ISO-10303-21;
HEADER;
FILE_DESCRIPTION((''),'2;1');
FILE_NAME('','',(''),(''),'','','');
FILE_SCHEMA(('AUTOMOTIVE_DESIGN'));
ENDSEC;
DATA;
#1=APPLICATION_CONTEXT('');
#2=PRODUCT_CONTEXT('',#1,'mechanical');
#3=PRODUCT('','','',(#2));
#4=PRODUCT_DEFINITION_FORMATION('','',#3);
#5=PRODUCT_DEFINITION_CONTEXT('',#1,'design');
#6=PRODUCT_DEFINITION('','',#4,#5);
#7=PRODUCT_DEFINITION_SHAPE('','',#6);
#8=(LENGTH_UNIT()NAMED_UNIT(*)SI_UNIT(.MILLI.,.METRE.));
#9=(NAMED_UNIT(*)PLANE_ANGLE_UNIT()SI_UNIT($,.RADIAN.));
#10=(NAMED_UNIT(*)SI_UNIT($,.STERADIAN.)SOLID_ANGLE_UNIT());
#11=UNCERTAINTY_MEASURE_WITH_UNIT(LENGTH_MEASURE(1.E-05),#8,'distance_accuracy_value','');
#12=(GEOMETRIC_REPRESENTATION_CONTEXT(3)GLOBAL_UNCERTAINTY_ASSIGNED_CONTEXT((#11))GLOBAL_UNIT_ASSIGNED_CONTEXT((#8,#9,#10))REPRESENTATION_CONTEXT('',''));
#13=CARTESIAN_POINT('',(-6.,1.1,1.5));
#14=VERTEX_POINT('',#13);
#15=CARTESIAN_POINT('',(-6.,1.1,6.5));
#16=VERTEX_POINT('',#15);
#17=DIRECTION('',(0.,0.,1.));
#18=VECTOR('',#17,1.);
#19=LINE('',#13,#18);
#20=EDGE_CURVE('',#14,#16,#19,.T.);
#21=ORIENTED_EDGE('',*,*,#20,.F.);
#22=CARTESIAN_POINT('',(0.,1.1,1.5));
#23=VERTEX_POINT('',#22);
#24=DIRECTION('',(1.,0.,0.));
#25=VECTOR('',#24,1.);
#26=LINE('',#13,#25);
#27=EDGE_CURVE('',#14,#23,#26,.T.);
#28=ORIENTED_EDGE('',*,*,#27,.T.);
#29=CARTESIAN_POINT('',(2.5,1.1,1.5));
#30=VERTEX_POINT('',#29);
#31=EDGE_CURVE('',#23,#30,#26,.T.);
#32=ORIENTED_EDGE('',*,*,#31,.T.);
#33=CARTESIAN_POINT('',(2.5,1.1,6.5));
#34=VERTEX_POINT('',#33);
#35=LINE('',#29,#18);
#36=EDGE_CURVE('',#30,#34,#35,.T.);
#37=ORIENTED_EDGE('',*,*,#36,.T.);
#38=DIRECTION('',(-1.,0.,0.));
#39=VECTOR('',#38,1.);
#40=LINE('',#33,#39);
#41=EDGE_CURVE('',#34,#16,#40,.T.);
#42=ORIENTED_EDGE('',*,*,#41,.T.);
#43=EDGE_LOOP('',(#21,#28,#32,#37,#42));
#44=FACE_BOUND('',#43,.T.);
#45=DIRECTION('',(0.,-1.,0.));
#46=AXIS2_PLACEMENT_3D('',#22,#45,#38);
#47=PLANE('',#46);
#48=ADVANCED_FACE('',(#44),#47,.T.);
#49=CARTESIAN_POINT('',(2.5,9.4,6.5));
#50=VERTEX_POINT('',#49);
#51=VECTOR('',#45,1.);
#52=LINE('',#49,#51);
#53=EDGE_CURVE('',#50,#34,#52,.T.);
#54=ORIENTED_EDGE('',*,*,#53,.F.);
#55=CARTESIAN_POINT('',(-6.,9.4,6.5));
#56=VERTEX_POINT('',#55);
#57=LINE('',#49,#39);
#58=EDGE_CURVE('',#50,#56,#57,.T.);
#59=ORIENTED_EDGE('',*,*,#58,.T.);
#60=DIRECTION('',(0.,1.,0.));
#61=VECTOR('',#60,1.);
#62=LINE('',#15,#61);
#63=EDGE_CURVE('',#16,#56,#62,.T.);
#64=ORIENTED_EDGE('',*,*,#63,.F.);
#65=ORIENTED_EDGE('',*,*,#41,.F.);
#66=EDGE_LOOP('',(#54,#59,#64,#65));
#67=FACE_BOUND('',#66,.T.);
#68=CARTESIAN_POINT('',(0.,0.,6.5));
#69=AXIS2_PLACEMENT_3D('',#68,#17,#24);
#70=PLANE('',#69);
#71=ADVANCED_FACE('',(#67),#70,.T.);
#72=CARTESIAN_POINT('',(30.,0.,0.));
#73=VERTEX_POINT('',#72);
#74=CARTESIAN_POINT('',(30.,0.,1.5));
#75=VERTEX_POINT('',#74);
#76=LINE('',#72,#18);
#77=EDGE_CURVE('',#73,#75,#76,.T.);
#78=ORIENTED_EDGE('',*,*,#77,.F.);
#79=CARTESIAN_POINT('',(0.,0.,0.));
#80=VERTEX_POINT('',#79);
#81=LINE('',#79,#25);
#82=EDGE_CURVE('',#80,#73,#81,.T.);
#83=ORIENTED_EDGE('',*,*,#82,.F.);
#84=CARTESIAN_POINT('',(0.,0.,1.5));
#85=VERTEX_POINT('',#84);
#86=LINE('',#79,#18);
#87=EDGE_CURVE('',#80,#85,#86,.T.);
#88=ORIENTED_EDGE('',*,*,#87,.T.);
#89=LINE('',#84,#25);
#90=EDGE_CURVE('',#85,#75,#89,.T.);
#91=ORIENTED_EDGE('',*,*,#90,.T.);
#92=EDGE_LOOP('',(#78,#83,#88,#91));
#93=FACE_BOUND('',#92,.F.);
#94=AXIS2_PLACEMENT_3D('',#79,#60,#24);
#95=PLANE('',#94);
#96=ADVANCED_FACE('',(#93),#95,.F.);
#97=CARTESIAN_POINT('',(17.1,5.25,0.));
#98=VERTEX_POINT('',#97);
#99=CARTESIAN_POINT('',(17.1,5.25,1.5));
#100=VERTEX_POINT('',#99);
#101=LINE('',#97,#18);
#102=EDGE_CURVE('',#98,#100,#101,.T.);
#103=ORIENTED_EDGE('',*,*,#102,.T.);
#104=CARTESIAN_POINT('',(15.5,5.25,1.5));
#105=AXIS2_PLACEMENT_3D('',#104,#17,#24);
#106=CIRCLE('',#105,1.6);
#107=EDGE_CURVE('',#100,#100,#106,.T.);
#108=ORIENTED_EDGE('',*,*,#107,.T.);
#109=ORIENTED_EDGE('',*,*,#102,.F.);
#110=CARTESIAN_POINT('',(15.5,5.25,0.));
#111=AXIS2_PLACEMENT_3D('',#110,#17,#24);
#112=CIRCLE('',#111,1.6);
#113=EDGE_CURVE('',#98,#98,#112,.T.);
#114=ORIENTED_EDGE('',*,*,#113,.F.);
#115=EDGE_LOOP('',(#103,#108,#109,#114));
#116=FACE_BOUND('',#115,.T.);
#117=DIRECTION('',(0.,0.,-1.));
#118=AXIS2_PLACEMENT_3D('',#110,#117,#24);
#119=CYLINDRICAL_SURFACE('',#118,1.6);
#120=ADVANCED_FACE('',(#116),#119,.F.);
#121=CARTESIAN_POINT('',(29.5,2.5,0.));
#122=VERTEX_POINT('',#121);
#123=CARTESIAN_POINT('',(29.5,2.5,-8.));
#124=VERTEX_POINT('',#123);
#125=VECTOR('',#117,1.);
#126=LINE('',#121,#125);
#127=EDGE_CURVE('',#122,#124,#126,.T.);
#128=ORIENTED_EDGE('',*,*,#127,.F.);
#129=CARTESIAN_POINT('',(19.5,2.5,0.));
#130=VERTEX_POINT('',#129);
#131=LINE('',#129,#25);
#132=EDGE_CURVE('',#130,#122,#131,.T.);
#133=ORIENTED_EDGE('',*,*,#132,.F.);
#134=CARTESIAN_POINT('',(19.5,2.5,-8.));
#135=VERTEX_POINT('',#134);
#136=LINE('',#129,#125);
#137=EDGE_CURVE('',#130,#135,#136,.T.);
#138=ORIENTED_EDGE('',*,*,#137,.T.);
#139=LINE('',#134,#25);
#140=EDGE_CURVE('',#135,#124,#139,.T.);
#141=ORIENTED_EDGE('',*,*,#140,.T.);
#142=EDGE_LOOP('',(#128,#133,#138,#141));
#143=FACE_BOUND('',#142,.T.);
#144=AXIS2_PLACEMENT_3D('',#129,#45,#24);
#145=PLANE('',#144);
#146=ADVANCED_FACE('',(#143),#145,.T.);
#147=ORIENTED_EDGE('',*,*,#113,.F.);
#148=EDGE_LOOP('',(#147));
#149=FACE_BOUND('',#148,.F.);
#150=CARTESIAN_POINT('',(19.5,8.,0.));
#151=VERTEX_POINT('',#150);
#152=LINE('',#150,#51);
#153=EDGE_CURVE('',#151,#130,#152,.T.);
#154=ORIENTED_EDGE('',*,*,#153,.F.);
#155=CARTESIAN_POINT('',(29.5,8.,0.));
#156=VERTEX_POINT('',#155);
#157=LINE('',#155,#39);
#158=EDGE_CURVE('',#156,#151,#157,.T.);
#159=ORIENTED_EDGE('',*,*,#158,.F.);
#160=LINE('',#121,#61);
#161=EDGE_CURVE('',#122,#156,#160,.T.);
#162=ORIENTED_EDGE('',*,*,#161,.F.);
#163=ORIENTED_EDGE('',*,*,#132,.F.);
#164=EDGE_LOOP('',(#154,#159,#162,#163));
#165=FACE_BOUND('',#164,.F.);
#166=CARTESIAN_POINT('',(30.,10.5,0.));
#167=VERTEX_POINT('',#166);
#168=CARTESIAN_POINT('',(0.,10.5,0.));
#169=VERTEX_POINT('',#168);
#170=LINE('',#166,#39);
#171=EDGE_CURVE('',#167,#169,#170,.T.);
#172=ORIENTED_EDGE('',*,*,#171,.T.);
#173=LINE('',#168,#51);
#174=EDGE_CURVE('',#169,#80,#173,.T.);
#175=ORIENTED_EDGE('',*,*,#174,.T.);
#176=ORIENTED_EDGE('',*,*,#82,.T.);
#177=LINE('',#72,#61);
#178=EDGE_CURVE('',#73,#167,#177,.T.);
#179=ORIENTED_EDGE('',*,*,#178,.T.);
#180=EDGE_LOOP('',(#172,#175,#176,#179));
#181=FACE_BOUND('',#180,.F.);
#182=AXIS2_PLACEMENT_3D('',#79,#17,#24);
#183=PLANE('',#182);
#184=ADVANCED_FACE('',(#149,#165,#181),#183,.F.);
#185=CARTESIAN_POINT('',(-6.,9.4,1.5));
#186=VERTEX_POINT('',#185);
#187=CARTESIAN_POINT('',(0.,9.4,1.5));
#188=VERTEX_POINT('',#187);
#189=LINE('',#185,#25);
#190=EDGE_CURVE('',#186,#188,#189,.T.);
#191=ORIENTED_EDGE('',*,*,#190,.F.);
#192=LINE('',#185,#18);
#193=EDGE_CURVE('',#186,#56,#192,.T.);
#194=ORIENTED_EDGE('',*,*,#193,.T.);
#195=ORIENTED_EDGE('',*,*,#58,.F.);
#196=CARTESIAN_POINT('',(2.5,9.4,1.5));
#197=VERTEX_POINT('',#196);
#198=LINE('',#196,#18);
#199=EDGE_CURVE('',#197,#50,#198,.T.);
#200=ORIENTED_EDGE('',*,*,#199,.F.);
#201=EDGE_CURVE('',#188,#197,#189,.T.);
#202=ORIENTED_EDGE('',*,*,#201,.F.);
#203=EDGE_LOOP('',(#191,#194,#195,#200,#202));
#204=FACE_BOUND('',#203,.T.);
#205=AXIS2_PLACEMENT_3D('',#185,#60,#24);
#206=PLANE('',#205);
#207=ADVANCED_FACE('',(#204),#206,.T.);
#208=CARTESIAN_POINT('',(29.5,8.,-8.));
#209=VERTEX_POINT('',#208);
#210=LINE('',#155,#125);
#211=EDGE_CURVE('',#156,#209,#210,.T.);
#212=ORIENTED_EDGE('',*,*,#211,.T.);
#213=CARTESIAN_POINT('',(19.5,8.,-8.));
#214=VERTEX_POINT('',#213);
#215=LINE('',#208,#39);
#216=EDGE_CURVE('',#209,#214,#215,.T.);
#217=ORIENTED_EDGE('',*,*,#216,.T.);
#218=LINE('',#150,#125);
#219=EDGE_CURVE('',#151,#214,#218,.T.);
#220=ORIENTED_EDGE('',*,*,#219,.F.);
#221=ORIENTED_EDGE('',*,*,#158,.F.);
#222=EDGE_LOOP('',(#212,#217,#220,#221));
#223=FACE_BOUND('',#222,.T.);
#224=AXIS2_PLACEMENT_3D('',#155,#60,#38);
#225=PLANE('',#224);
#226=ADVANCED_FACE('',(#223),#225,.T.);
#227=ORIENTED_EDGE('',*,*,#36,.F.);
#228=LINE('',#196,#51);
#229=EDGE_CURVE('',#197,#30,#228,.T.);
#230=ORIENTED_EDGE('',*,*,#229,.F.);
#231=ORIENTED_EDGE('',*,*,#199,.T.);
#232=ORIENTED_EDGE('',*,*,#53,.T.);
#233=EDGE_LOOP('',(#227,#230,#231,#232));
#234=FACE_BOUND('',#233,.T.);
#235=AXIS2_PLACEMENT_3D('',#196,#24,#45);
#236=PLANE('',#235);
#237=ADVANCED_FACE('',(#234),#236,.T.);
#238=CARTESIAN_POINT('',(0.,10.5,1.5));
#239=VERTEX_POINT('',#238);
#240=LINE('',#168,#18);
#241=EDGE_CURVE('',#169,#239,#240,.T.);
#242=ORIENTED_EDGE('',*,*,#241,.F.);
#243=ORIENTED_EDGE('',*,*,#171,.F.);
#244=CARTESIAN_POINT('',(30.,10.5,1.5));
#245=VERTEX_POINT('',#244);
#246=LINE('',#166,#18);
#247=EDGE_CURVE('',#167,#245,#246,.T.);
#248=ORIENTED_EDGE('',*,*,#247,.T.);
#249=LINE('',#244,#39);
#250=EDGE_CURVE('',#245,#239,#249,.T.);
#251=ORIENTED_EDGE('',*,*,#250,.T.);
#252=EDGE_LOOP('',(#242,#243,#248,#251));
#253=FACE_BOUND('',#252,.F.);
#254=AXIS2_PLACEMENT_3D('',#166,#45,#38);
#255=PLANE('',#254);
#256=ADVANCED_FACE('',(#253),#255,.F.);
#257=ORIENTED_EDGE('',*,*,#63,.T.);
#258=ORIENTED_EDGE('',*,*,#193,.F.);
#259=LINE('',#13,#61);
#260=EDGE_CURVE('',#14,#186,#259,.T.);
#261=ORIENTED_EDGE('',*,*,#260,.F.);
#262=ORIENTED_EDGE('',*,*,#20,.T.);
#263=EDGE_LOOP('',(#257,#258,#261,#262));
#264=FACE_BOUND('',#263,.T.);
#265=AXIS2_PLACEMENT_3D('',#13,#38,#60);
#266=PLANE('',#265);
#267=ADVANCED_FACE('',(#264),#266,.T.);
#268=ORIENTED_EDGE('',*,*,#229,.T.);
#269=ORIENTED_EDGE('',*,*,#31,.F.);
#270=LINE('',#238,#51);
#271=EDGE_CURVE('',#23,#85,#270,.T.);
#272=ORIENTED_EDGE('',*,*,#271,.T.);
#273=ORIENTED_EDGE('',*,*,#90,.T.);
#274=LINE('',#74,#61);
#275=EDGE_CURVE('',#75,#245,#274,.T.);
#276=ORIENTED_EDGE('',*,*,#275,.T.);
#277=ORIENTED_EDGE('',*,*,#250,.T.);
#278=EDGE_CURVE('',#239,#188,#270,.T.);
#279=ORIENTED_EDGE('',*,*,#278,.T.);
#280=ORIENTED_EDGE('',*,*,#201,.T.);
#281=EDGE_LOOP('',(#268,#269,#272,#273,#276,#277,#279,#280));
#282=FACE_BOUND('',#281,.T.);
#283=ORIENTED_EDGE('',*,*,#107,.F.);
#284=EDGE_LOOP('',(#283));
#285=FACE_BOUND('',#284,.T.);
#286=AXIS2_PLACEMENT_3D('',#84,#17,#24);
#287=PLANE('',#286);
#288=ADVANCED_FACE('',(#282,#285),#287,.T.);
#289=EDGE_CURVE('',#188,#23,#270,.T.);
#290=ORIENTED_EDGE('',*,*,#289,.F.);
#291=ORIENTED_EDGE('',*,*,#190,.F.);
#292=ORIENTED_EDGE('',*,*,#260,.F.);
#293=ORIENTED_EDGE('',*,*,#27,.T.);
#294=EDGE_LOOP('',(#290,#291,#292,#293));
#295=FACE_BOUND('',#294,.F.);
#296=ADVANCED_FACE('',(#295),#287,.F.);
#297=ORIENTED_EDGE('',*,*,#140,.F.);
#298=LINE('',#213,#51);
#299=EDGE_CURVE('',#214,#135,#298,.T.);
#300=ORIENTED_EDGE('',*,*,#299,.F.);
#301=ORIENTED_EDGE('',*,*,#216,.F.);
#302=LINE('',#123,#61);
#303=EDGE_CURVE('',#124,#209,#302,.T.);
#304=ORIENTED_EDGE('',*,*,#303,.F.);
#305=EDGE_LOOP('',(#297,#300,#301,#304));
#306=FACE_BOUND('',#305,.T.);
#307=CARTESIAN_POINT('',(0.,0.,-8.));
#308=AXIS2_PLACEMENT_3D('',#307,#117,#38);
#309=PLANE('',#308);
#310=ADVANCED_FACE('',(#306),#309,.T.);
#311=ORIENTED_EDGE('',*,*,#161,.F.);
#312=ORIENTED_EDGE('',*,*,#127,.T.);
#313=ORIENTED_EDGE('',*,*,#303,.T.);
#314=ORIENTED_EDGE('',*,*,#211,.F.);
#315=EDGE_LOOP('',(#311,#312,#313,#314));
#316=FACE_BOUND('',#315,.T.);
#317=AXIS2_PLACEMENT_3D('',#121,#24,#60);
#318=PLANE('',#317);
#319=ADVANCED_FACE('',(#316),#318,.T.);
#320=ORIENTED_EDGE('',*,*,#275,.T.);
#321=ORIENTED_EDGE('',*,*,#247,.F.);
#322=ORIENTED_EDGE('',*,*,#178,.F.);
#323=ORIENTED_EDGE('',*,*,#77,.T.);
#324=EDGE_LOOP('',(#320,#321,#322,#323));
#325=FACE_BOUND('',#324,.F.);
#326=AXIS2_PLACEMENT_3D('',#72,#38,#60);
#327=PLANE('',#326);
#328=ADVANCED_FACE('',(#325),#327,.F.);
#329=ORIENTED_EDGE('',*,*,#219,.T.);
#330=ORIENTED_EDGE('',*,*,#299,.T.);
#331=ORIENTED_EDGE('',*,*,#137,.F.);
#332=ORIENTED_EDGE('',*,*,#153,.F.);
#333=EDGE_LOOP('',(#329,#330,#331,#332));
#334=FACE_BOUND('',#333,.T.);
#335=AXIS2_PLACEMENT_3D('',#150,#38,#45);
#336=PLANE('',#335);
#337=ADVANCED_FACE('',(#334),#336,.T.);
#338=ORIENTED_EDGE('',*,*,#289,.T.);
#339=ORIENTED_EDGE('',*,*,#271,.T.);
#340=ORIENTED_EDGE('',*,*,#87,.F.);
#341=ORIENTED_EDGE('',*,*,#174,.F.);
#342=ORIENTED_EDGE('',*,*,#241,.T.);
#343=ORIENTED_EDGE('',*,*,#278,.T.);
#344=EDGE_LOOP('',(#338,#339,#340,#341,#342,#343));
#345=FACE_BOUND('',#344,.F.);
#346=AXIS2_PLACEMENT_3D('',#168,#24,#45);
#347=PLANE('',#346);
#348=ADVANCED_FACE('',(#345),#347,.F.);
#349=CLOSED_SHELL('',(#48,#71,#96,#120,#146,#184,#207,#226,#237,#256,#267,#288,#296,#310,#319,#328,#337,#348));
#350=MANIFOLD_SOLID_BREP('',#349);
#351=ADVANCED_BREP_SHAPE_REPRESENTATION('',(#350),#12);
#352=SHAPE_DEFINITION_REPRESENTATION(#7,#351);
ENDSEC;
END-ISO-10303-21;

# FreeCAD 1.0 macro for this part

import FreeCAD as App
import Part
import Sketcher

V = App.Vector
Q = App.Units.Quantity

doc = App.newDocument("Part")
body = doc.addObject("PartDesign::Body", "Body")

# Sketch on XY plane
sketch1 = doc.addObject("Sketcher::SketchObject", "Sketch")
body.addObject(sketch1)
sketch1.AttachmentSupport = (doc.XY_Plane, [""])
sketch1.MapMode = "FlatFace"
sketch1.addGeometry(Part.LineSegment(V(0, 10.5, 0), V(0, 0, 0)), False)
sketch1.addGeometry(Part.LineSegment(V(0, 0, 0), V(30, 0, 0)), False)
sketch1.addGeometry(Part.LineSegment(V(30, 0, 0), V(30, 10.5, 0)), False)
sketch1.addGeometry(Part.LineSegment(V(30, 10.5, 0), V(0, 10.5, 0)), False)
sketch1.addGeometry(Part.Circle(V(15.5, 5.2, 0), V(0, 0, 1), 1.6), False)
sketch1.addConstraint(Sketcher.Constraint("Coincident", 0, 2, 1, 1))
sketch1.addConstraint(Sketcher.Constraint("Coincident", 1, 2, 2, 1))
sketch1.addConstraint(Sketcher.Constraint("Coincident", 2, 2, 3, 1))
sketch1.addConstraint(Sketcher.Constraint("Coincident", 3, 2, 0, 1))
sketch1.addConstraint(Sketcher.Constraint("Vertical", 0))
sketch1.addConstraint(Sketcher.Constraint("Horizontal", 1))
sketch1.addConstraint(Sketcher.Constraint("Vertical", 2))
sketch1.addConstraint(Sketcher.Constraint("Horizontal", 3))
sketch1.addConstraint(Sketcher.Constraint("Coincident", 0, 2, -1, 1))
sketch1.addConstraint(Sketcher.Constraint("Diameter", 4, Q("3.2 mm")))
sketch1.addConstraint(Sketcher.Constraint("DistanceX", 1, 1, 1, 2, Q("30 mm")))
sketch1.addConstraint(Sketcher.Constraint("DistanceY", 0, 2, 0, 1, Q("10.5 mm")))
sketch1.addConstraint(Sketcher.Constraint("DistanceX", 4, 3, 1, 2, Q("14.5 mm")))
sketch1.addConstraint(Sketcher.Constraint("DistanceY", -1, 1, 4, 3, Q("5.25 mm")))
pad1 = doc.addObject("PartDesign::Pad", "Pad")
body.addObject(pad1)
pad1.Profile = sketch1
pad1.Length = 1.5

# Sketch on XY plane
sketch2 = doc.addObject("Sketcher::SketchObject", "Sketch001")
body.addObject(sketch2)
sketch2.AttachmentSupport = (doc.XY_Plane, [""])
sketch2.MapMode = "FlatFace"
sketch2.AttachmentOffset = App.Placement(V(0, 0, 1.5), App.Rotation())
sketch2.addGeometry(Part.LineSegment(V(-6, 1, 0), V(2, 1, 0)), False)
sketch2.addGeometry(Part.LineSegment(V(2, 1, 0), V(2, 9, 0)), False)
sketch2.addGeometry(Part.LineSegment(V(2, 9, 0), V(-6, 9, 0)), False)
sketch2.addGeometry(Part.LineSegment(V(-6, 9, 0), V(-6, 1, 0)), False)
sketch2.addConstraint(Sketcher.Constraint("Coincident", 0, 2, 1, 1))
sketch2.addConstraint(Sketcher.Constraint("Coincident", 1, 2, 2, 1))
sketch2.addConstraint(Sketcher.Constraint("Coincident", 2, 2, 3, 1))
sketch2.addConstraint(Sketcher.Constraint("Coincident", 3, 2, 0, 1))
sketch2.addConstraint(Sketcher.Constraint("Horizontal", 0))
sketch2.addConstraint(Sketcher.Constraint("Vertical", 1))
sketch2.addConstraint(Sketcher.Constraint("Horizontal", 2))
sketch2.addConstraint(Sketcher.Constraint("Vertical", 3))
sketch2.addConstraint(Sketcher.Constraint("DistanceY", 1, 1, 1, 2, Q("8.3 mm")))
sketch2.addConstraint(Sketcher.Constraint("DistanceX", -1, 1, 0, 2, Q("2.5 mm")))
sketch2.addConstraint(Sketcher.Constraint("DistanceX", 0, 1, 0, 2, Q("8.5 mm")))
sketch2.addConstraint(Sketcher.Constraint("DistanceY", -1, 1, 0, 2, Q("1.1 mm")))
pad2 = doc.addObject("PartDesign::Pad", "Pad001")
body.addObject(pad2)
pad2.Profile = sketch2
pad2.Length = 5

# Sketch on XY plane
sketch3 = doc.addObject("Sketcher::SketchObject", "Sketch002")
body.addObject(sketch3)
sketch3.AttachmentSupport = (doc.XY_Plane, [""])
sketch3.MapMode = "FlatFace"
sketch3.addGeometry(Part.LineSegment(V(20, 8, 0), V(30, 8, 0)), False)
sketch3.addGeometry(Part.LineSegment(V(30, 8, 0), V(30, 2, 0)), False)
sketch3.addGeometry(Part.LineSegment(V(30, 2, 0), V(20, 2, 0)), False)
sketch3.addGeometry(Part.LineSegment(V(20, 2, 0), V(20, 8, 0)), False)
sketch3.addConstraint(Sketcher.Constraint("Coincident", 0, 2, 1, 1))
sketch3.addConstraint(Sketcher.Constraint("Coincident", 1, 2, 2, 1))
sketch3.addConstraint(Sketcher.Constraint("Coincident", 2, 2, 3, 1))
sketch3.addConstraint(Sketcher.Constraint("Coincident", 3, 2, 0, 1))
sketch3.addConstraint(Sketcher.Constraint("Horizontal", 0))
sketch3.addConstraint(Sketcher.Constraint("Vertical", 1))
sketch3.addConstraint(Sketcher.Constraint("Horizontal", 2))
sketch3.addConstraint(Sketcher.Constraint("Vertical", 3))
sketch3.addConstraint(Sketcher.Constraint("DistanceX", 0, 1, 0, 2, Q("10 mm")))
sketch3.addConstraint(Sketcher.Constraint("DistanceY", 1, 2, 1, 1, Q("5.5 mm")))
sketch3.addConstraint(Sketcher.Constraint("DistanceY", -1, 1, 0, 2, Q("8 mm")))
sketch3.addConstraint(Sketcher.Constraint("DistanceX", -1, 1, 0, 2, Q("29.5 mm")))
pad3 = doc.addObject("PartDesign::Pad", "Pad002")
body.addObject(pad3)
pad3.Profile = sketch3
pad3.Length = 8
pad3.Reversed = True

doc.recompute()
